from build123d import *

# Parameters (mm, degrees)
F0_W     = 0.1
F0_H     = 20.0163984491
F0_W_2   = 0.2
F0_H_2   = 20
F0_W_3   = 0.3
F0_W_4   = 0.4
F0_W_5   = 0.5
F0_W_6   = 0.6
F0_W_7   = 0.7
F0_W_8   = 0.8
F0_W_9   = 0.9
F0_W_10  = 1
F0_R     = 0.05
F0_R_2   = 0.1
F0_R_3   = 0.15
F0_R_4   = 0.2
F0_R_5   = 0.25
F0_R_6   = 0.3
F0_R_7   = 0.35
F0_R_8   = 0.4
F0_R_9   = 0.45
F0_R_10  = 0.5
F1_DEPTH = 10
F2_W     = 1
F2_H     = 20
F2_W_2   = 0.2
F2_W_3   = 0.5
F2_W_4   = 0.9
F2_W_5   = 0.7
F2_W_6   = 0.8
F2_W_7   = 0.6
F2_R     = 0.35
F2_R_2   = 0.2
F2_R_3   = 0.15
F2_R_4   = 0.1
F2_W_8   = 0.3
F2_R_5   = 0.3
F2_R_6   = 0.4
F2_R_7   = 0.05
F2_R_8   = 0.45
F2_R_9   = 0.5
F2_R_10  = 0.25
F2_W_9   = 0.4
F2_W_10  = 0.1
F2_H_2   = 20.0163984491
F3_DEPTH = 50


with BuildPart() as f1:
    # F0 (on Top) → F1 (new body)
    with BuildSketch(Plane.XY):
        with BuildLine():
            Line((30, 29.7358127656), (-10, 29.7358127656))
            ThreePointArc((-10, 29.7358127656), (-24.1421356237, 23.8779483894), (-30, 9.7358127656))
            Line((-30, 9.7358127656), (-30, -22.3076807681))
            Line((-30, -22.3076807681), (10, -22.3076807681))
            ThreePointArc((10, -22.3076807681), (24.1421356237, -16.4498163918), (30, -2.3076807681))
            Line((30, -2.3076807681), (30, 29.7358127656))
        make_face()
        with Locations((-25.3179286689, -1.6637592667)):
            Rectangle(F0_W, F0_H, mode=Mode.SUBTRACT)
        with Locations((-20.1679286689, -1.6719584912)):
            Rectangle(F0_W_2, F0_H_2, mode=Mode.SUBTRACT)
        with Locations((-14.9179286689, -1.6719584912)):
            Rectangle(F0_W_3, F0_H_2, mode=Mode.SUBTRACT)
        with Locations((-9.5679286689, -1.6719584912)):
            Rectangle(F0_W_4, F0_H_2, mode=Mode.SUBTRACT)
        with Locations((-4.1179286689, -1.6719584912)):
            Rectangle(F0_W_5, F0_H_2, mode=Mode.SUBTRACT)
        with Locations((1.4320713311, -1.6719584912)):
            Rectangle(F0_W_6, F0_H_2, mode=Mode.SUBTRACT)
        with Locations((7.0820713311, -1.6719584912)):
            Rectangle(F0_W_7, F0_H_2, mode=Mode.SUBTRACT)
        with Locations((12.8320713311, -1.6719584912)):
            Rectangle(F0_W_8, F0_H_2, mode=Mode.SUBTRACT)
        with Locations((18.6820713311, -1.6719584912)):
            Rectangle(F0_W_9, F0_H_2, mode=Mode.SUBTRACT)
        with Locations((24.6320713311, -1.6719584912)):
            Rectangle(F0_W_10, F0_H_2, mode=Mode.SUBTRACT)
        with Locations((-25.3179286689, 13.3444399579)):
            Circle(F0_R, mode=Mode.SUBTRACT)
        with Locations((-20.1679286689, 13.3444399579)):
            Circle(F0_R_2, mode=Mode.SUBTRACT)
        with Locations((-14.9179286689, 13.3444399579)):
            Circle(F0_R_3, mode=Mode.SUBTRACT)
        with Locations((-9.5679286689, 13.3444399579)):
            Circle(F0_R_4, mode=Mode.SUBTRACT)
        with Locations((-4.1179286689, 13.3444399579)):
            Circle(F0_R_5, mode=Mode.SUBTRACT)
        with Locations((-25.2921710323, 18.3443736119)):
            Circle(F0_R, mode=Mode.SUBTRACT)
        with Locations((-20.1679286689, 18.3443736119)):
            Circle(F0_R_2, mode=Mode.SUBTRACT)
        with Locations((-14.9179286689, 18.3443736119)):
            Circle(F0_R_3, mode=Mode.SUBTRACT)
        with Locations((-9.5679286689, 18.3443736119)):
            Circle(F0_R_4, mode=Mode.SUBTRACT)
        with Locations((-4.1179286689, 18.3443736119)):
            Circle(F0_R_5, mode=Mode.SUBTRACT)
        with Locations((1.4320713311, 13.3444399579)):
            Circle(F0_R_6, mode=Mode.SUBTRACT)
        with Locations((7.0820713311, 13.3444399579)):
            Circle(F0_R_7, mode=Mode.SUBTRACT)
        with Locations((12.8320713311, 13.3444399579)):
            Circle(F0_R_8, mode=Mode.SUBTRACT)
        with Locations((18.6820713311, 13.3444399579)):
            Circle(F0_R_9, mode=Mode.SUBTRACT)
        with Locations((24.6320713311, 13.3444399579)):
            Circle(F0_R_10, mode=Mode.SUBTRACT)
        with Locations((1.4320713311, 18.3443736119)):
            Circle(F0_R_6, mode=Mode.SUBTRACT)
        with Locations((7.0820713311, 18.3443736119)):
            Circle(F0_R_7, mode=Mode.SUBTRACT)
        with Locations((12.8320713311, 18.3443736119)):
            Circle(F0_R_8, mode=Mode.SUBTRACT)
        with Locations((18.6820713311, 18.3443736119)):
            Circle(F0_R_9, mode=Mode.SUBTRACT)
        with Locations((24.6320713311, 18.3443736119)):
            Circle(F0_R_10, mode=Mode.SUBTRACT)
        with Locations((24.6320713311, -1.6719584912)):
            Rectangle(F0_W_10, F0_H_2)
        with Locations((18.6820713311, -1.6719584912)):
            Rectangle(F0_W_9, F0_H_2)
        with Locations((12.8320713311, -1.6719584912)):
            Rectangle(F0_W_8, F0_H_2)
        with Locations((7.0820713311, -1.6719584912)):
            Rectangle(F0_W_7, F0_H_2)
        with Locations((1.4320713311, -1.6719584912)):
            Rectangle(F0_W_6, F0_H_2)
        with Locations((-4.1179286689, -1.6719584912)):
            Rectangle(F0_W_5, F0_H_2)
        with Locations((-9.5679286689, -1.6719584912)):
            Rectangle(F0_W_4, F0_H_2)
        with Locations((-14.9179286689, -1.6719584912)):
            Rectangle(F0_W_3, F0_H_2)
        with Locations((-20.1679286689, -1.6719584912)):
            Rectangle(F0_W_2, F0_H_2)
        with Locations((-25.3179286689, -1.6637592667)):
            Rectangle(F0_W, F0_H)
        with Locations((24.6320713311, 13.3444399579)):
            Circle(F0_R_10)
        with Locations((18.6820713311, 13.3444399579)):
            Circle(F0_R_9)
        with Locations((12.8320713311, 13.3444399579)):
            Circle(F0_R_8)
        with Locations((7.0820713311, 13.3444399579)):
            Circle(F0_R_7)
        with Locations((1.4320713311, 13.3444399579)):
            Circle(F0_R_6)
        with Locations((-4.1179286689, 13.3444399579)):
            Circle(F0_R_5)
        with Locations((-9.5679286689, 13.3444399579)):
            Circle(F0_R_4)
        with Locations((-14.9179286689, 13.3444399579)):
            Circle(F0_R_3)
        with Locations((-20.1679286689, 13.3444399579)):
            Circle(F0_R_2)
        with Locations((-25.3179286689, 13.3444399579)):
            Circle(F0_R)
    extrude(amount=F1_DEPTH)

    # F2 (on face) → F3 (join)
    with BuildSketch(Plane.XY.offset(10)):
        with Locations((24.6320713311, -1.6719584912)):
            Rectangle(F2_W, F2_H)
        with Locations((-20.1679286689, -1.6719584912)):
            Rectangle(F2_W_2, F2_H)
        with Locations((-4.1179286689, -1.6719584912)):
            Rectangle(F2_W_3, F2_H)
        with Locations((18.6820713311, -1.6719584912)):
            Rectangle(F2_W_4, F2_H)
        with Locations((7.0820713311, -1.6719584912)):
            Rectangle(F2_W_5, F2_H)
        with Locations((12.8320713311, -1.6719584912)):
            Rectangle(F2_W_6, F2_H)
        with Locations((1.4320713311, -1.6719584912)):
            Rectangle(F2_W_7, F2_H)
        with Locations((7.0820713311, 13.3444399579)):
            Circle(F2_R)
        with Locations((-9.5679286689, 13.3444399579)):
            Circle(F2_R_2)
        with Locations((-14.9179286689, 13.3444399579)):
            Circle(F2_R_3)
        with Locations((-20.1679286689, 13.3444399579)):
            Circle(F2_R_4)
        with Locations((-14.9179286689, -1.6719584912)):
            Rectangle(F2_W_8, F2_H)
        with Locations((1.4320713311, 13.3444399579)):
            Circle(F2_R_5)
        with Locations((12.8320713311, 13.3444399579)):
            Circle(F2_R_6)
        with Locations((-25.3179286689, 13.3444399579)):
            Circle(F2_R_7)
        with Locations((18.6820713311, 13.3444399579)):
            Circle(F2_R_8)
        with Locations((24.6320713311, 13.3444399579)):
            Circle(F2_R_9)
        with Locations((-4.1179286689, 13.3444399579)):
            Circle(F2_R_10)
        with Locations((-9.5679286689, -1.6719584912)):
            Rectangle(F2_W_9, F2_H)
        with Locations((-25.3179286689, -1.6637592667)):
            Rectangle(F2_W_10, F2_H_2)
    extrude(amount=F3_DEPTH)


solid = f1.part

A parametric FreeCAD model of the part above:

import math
import FreeCAD as App
import Part
import Sketcher
from FreeCAD import Vector
Q = App.Units.Quantity


def add_polygon(sketch, points):
    """Adds a closed chain of lines whose ends are joined by coincident constraints."""
    first, n = sketch.GeometryCount, len(points)
    for a, b in zip(points, points[1:] + points[:1]):
        sketch.addGeometry(Part.LineSegment(App.Vector(*a, 0), App.Vector(*b, 0)), False)
    for i in range(n):
        sketch.addConstraint(Sketcher.Constraint("Coincident", first + i, 2, first + (i + 1) % n, 1))

doc = App.newDocument("Part")
params = doc.addObject("Spreadsheet::Sheet", "Params")
for row, (alias, value) in enumerate([
    ("sketch1_diameter", "1 mm"),
    ("sketch1_radius", "20 mm"),
    ("sketch1_diameter2", "0.1 mm"),
    ("sketch1_diameter3", "0.2 mm"),
    ("sketch1_diameter4", "0.3 mm"),
    ("pad1_length", "10 mm"),
    ("sketch2_diameter", "1 mm"),
    ("sketch2_diameter2", "0.7 mm"),
    ("sketch2_diameter3", "0.4 mm"),
    ("sketch2_diameter4", "0.3 mm"),
    ("sketch2_diameter5", "0.2 mm"),
    ("pad2_length", "50 mm"),
], start=1):
    params.set(f"A{row}", alias)
    params.set(f"B{row}", "=" + value)
    params.setAlias(f"B{row}", alias)

body = doc.addObject("PartDesign::Body", "Body")

# Sketch on XY plane
sketch1 = body.newObject("Sketcher::SketchObject", "Sketch")
sketch1.AttachmentSupport = (doc.getObject("XY_Plane"), [""])
sketch1.MapMode = "FlatFace"
sketch1.addGeometry([
    Part.LineSegment(Vector(30, 29.735813, 0), Vector(-10, 29.735813, 0)),  # 0
    Part.ArcOfCircle(Part.Circle(Vector(-10, 9.735813, 0), Vector(0, 0, 1), 20), math.radians(90), math.radians(180)),  # 1
    Part.LineSegment(Vector(-30, 9.735813, 0), Vector(-30, -22.307681, 0)),  # 2
    Part.LineSegment(Vector(-30, -22.307681, 0), Vector(10, -22.307681, 0)),  # 3
    Part.ArcOfCircle(Part.Circle(Vector(10, -2.307681, 0), Vector(0, 0, 1), 20), math.radians(-90), math.radians(0)),  # 4
    Part.LineSegment(Vector(30, -2.307681, 0), Vector(30, 29.735813, 0)),  # 5
    Part.Circle(Vector(-25.292171, 18.344374, 0), Vector(0, 0, 1), 0.05),  # 6
    Part.Circle(Vector(-20.167929, 18.344374, 0), Vector(0, 0, 1), 0.1),  # 7
    Part.Circle(Vector(-14.917929, 18.344374, 0), Vector(0, 0, 1), 0.15),  # 8
    Part.Circle(Vector(-9.567929, 18.344374, 0), Vector(0, 0, 1), 0.2),  # 9
    Part.Circle(Vector(-4.117929, 18.344374, 0), Vector(0, 0, 1), 0.25),  # 10
    Part.Circle(Vector(1.432071, 18.344374, 0), Vector(0, 0, 1), 0.3),  # 11
    Part.Circle(Vector(7.082071, 18.344374, 0), Vector(0, 0, 1), 0.35),  # 12
    Part.Circle(Vector(12.832071, 18.344374, 0), Vector(0, 0, 1), 0.4),  # 13
    Part.Circle(Vector(18.682071, 18.344374, 0), Vector(0, 0, 1), 0.45),  # 14
    Part.Circle(Vector(24.632071, 18.344374, 0), Vector(0, 0, 1), 0.5),  # 15
], False)
sketch1.addConstraint([
    Sketcher.Constraint("Tangent", 0, 2, 1, 1),
    Sketcher.Constraint("Tangent", 1, 2, 2, 1),
    Sketcher.Constraint("Coincident", 2, 2, 3, 1),
    Sketcher.Constraint("Tangent", 3, 2, 4, 1),
    Sketcher.Constraint("Tangent", 4, 2, 5, 1),
    Sketcher.Constraint("Coincident", 5, 2, 0, 1),
    Sketcher.Constraint("Horizontal", 0),
    Sketcher.Constraint("Vertical", 2),
    Sketcher.Constraint("Horizontal", 3),
    Sketcher.Constraint("Vertical", 5),
    Sketcher.Constraint("Equal", 1, 4),
    Sketcher.Constraint("Horizontal", 6, 3, 7, 3),
    Sketcher.Constraint("Horizontal", 7, 3, 8, 3),
    Sketcher.Constraint("Horizontal", 8, 3, 9, 3),
    Sketcher.Constraint("Horizontal", 9, 3, 10, 3),
    Sketcher.Constraint("Horizontal", 10, 3, 11, 3),
    Sketcher.Constraint("Horizontal", 11, 3, 12, 3),
    Sketcher.Constraint("Horizontal", 12, 3, 13, 3),
    Sketcher.Constraint("Horizontal", 13, 3, 14, 3),
    Sketcher.Constraint("Horizontal", 14, 3, 15, 3),
    Sketcher.Constraint("Diameter", 15, Q("1 mm")),
    Sketcher.Constraint("Radius", 1, Q("20 mm")),
    Sketcher.Constraint("Diameter", 6, Q("0.1 mm")),
    Sketcher.Constraint("Diameter", 7, Q("0.2 mm")),
    Sketcher.Constraint("Diameter", 8, Q("0.3 mm")),
    Sketcher.Constraint("Diameter", 9, Q("0.4 mm")),
    Sketcher.Constraint("Diameter", 10, Q("0.5 mm")),
    Sketcher.Constraint("Diameter", 11, Q("0.6 mm")),
    Sketcher.Constraint("Diameter", 12, Q("0.7 mm")),
    Sketcher.Constraint("Diameter", 13, Q("0.8 mm")),
    Sketcher.Constraint("Diameter", 14, Q("0.9 mm")),
    Sketcher.Constraint("DistanceX", 0, 2, 0, 1, Q("40 mm")),
    Sketcher.Constraint("DistanceX", 1, 3, -1, 1, Q("10 mm")),
    Sketcher.Constraint("DistanceX", 9, 3, 11, 3, Q("11 mm")),
    Sketcher.Constraint("DistanceX", 7, 3, 9, 3, Q("10.6 mm")),
    Sketcher.Constraint("DistanceX", 8, 3, 10, 3, Q("10.8 mm")),
    Sketcher.Constraint("DistanceX", 10, 3, 12, 3, Q("11.2 mm")),
    Sketcher.Constraint("DistanceX", 11, 3, 13, 3, Q("11.4 mm")),
    Sketcher.Constraint("DistanceX", 12, 3, 14, 3, Q("11.6 mm")),
    Sketcher.Constraint("DistanceX", 13, 3, 15, 3, Q("11.8 mm")),
    Sketcher.Constraint("DistanceX", 7, 3, 8, 3, Q("5.25 mm")),
    Sketcher.Constraint("DistanceY", 2, 2, 2, 1, Q("32.043494 mm")),
    Sketcher.Constraint("DistanceY", 4, 3, -1, 1, Q("2.307681 mm")),
    Sketcher.Constraint("DistanceX", 6, 3, -1, 1, Q("25.292171 mm")),
    Sketcher.Constraint("DistanceX", 7, 3, -1, 1, Q("20.167929 mm")),
    Sketcher.Constraint("DistanceY", 1, 3, 6, 3, Q("8.608561 mm")),
])
sketch1.setExpression("Constraints[20]", "Params.sketch1_diameter")
sketch1.setExpression("Constraints[21]", "Params.sketch1_radius")
sketch1.setExpression("Constraints[22]", "Params.sketch1_diameter2")
sketch1.setExpression("Constraints[23]", "Params.sketch1_diameter3")
sketch1.setExpression("Constraints[24]", "Params.sketch1_diameter4")
pad1 = body.newObject("PartDesign::Pad", "Pad")
pad1.Profile = sketch1
pad1.setExpression("Length", "Params.pad1_length")

# Sketch on XY plane
sketch2 = body.newObject("Sketcher::SketchObject", "Sketch001")
sketch2.AttachmentSupport = (doc.getObject("XY_Plane"), [""])
sketch2.MapMode = "FlatFace"
sketch2.AttachmentOffset = App.Placement(Vector(0, 0, 10), App.Rotation())
add_polygon(sketch2, [(24.132071, 8.328042), (24.132071, -11.671958), (25.132071, -11.671958), (25.132071, 8.328042)])  # lines 0-3
add_polygon(sketch2, [(-20.267929, 8.328042), (-20.267929, -11.671958), (-20.067929, -11.671958), (-20.067929, 8.328042)])  # lines 4-7
add_polygon(sketch2, [(-4.367929, 8.328042), (-4.367929, -11.671958), (-3.867929, -11.671958), (-3.867929, 8.328042)])  # lines 8-11
add_polygon(sketch2, [(18.232071, 8.328042), (18.232071, -11.671958), (19.132071, -11.671958), (19.132071, 8.328042)])  # lines 12-15
add_polygon(sketch2, [(6.732071, 8.328042), (6.732071, -11.671958), (7.432071, -11.671958), (7.432071, 8.328042)])  # lines 16-19
add_polygon(sketch2, [(12.432071, 8.328042), (12.432071, -11.671958), (13.232071, -11.671958), (13.232071, 8.328042)])  # lines 20-23
add_polygon(sketch2, [(1.132071, 8.328042), (1.132071, -11.671958), (1.732071, -11.671958), (1.732071, 8.328042)])  # lines 24-27
sketch2.addGeometry(Part.Circle(Vector(7.082071, 13.34444, 0), Vector(0, 0, 1), 0.35), False)  # 28
sketch2.addGeometry(Part.Circle(Vector(-9.567929, 13.34444, 0), Vector(0, 0, 1), 0.2), False)  # 29
sketch2.addGeometry(Part.Circle(Vector(-14.917929, 13.34444, 0), Vector(0, 0, 1), 0.15), False)  # 30
sketch2.addGeometry(Part.Circle(Vector(-20.167929, 13.34444, 0), Vector(0, 0, 1), 0.1), False)  # 31
add_polygon(sketch2, [(-15.067929, 8.328042), (-15.067929, -11.671958), (-14.767929, -11.671958), (-14.767929, 8.328042)])  # lines 32-35
sketch2.addGeometry(Part.Circle(Vector(1.432071, 13.34444, 0), Vector(0, 0, 1), 0.3), False)  # 36
sketch2.addGeometry(Part.Circle(Vector(12.832071, 13.34444, 0), Vector(0, 0, 1), 0.4), False)  # 37
sketch2.addGeometry(Part.Circle(Vector(-25.317929, 13.34444, 0), Vector(0, 0, 1), 0.05), False)  # 38
sketch2.addGeometry(Part.Circle(Vector(18.682071, 13.34444, 0), Vector(0, 0, 1), 0.45), False)  # 39
sketch2.addGeometry(Part.Circle(Vector(24.632071, 13.34444, 0), Vector(0, 0, 1), 0.5), False)  # 40
sketch2.addGeometry(Part.Circle(Vector(-4.117929, 13.34444, 0), Vector(0, 0, 1), 0.25), False)  # 41
add_polygon(sketch2, [(-9.767929, 8.328042), (-9.767929, -11.671958), (-9.367929, -11.671958), (-9.367929, 8.328042)])  # lines 42-45
add_polygon(sketch2, [(-25.367929, 8.34444), (-25.367929, -11.671958), (-25.267929, -11.671958), (-25.267929, 8.34444)])  # lines 46-49
sketch2.addConstraint([
    Sketcher.Constraint("Vertical", 0),
    Sketcher.Constraint("Horizontal", 1),
    Sketcher.Constraint("Vertical", 2),
    Sketcher.Constraint("Horizontal", 3),
    Sketcher.Constraint("Vertical", 4),
    Sketcher.Constraint("Horizontal", 5),
    Sketcher.Constraint("Vertical", 6),
    Sketcher.Constraint("Horizontal", 7),
    Sketcher.Constraint("Vertical", 8),
    Sketcher.Constraint("Horizontal", 9),
    Sketcher.Constraint("Vertical", 10),
    Sketcher.Constraint("Horizontal", 11),
    Sketcher.Constraint("Vertical", 12),
    Sketcher.Constraint("Horizontal", 13),
    Sketcher.Constraint("Vertical", 14),
    Sketcher.Constraint("Horizontal", 15),
    Sketcher.Constraint("Vertical", 16),
    Sketcher.Constraint("Horizontal", 17),
    Sketcher.Constraint("Vertical", 18),
    Sketcher.Constraint("Horizontal", 19),
    Sketcher.Constraint("Vertical", 20),
    Sketcher.Constraint("Horizontal", 21),
    Sketcher.Constraint("Vertical", 22),
    Sketcher.Constraint("Horizontal", 23),
    Sketcher.Constraint("Vertical", 24),
    Sketcher.Constraint("Horizontal", 25),
    Sketcher.Constraint("Vertical", 26),
    Sketcher.Constraint("Horizontal", 27),
    Sketcher.Constraint("Vertical", 32),
    Sketcher.Constraint("Horizontal", 33),
    Sketcher.Constraint("Vertical", 34),
    Sketcher.Constraint("Horizontal", 35),
    Sketcher.Constraint("Vertical", 42),
    Sketcher.Constraint("Horizontal", 43),
    Sketcher.Constraint("Vertical", 44),
    Sketcher.Constraint("Horizontal", 45),
    Sketcher.Constraint("Vertical", 46),
    Sketcher.Constraint("Horizontal", 47),
    Sketcher.Constraint("Vertical", 48),
    Sketcher.Constraint("Horizontal", 49),
    Sketcher.Constraint("Horizontal", 28, 3, 29, 3),
    Sketcher.Constraint("Horizontal", 29, 3, 30, 3),
    Sketcher.Constraint("Horizontal", 30, 3, 31, 3),
    Sketcher.Constraint("Horizontal", 31, 3, 36, 3),
    Sketcher.Constraint("Horizontal", 36, 3, 37, 3),
    Sketcher.Constraint("Horizontal", 37, 3, 38, 3),
    Sketcher.Constraint("Horizontal", 38, 3, 39, 3),
    Sketcher.Constraint("Horizontal", 39, 3, 40, 3),
    Sketcher.Constraint("Horizontal", 40, 3, 41, 3),
    Sketcher.Constraint("Horizontal", 1, 2, 4, 2),
    Sketcher.Constraint("Horizontal", 3, 2, 6, 2),
    Sketcher.Constraint("Horizontal", 5, 2, 8, 2),
    Sketcher.Constraint("Horizontal", 7, 2, 10, 2),
    Sketcher.Constraint("Horizontal", 9, 2, 12, 2),
    Sketcher.Constraint("Horizontal", 11, 2, 14, 2),
    Sketcher.Constraint("Horizontal", 13, 2, 16, 2),
    Sketcher.Constraint("Horizontal", 15, 2, 18, 2),
    Sketcher.Constraint("Horizontal", 17, 2, 20, 2),
    Sketcher.Constraint("Horizontal", 19, 2, 22, 2),
    Sketcher.Constraint("Horizontal", 21, 2, 24, 2),
    Sketcher.Constraint("Horizontal", 23, 2, 26, 2),
    Sketcher.Constraint("Horizontal", 25, 2, 32, 2),
    Sketcher.Constraint("Horizontal", 27, 2, 34, 2),
    Sketcher.Constraint("Horizontal", 33, 2, 42, 2),
    Sketcher.Constraint("Horizontal", 35, 2, 44, 2),
    Sketcher.Constraint("Horizontal", 43, 2, 46, 2),
    Sketcher.Constraint("Diameter", 40, Q("1 mm")),
    Sketcher.Constraint("Diameter", 28, Q("0.7 mm")),
    Sketcher.Constraint("Diameter", 29, Q("0.4 mm")),
    Sketcher.Constraint("Diameter", 30, Q("0.3 mm")),
    Sketcher.Constraint("Diameter", 31, Q("0.2 mm")),
    Sketcher.Constraint("Diameter", 36, Q("0.6 mm")),
    Sketcher.Constraint("Diameter", 37, Q("0.8 mm")),
    Sketcher.Constraint("Diameter", 38, Q("0.1 mm")),
    Sketcher.Constraint("Diameter", 39, Q("0.9 mm")),
    Sketcher.Constraint("Diameter", 41, Q("0.5 mm")),
    Sketcher.Constraint("DistanceX", 1, 1, 1, 2, Q("1 mm")),
    Sketcher.Constraint("DistanceY", 0, 2, 0, 1, Q("20 mm")),
    Sketcher.Constraint("DistanceX", 5, 1, 5, 2, Q("0.2 mm")),
    Sketcher.Constraint("DistanceX", 9, 1, 9, 2, Q("0.5 mm")),
    Sketcher.Constraint("DistanceX", 13, 1, 13, 2, Q("0.9 mm")),
    Sketcher.Constraint("DistanceX", 17, 1, 17, 2, Q("0.7 mm")),
    Sketcher.Constraint("DistanceX", 21, 1, 21, 2, Q("0.8 mm")),
    Sketcher.Constraint("DistanceX", 25, 1, 25, 2, Q("0.6 mm")),
    Sketcher.Constraint("DistanceX", 33, 1, 33, 2, Q("0.3 mm")),
    Sketcher.Constraint("DistanceX", 43, 1, 43, 2, Q("0.4 mm")),
    Sketcher.Constraint("DistanceX", 47, 1, 47, 2, Q("0.1 mm")),
    Sketcher.Constraint("DistanceX", 30, 3, 28, 3, Q("22 mm")),
    Sketcher.Constraint("DistanceX", 29, 3, 36, 3, Q("11 mm")),
    Sketcher.Constraint("DistanceX", 31, 3, 37, 3, Q("33 mm")),
    Sketcher.Constraint("DistanceX", 13, 2, 0, 2, Q("5 mm")),
    Sketcher.Constraint("DistanceX", 36, 3, 18, 2, Q("6 mm")),
    Sketcher.Constraint("DistanceX", 17, 2, 20, 2, Q("5 mm")),
    Sketcher.Constraint("DistanceX", 21, 2, 12, 2, Q("5 mm")),
    Sketcher.Constraint("DistanceX", 9, 2, 24, 2, Q("5 mm")),
    Sketcher.Constraint("DistanceX", 25, 2, 16, 2, Q("5 mm")),
    Sketcher.Constraint("DistanceX", 5, 2, 32, 2, Q("5 mm")),
    Sketcher.Constraint("DistanceX", 33, 2, 42, 2, Q("5 mm")),
    Sketcher.Constraint("DistanceX", 43, 2, 8, 2, Q("5 mm")),
    Sketcher.Constraint("DistanceX", 47, 2, 4, 2, Q("5 mm")),
    Sketcher.Constraint("DistanceY", 48, 2, 38, 3, Q("5 mm")),
    Sketcher.Constraint("DistanceX", 31, 3, 29, 3, Q("10.6 mm")),
    Sketcher.Constraint("DistanceX", 38, 3, 30, 3, Q("10.4 mm")),
    Sketcher.Constraint("DistanceX", 28, 3, 39, 3, Q("11.6 mm")),
    Sketcher.Constraint("DistanceX", 37, 3, 40, 3, Q("11.8 mm")),
    Sketcher.Constraint("DistanceX", 30, 3, 41, 3, Q("10.8 mm")),
    Sketcher.Constraint("DistanceX", 29, 3, 28, 3, Q("16.65 mm")),
    Sketcher.Constraint("DistanceY", 46, 2, 46, 1, Q("20.016398 mm")),
    Sketcher.Constraint("DistanceX", -1, 1, 28, 3, Q("7.082071 mm")),
    Sketcher.Constraint("DistanceY", -1, 1, 28, 3, Q("13.34444 mm")),
])
sketch2.setExpression("Constraints[106]", "Params.sketch2_diameter")
sketch2.setExpression("Constraints[107]", "Params.sketch2_diameter2")
sketch2.setExpression("Constraints[108]", "Params.sketch2_diameter3")
sketch2.setExpression("Constraints[109]", "Params.sketch2_diameter4")
sketch2.setExpression("Constraints[110]", "Params.sketch2_diameter5")
pad2 = body.newObject("PartDesign::Pad", "Pad001")
pad2.Profile = sketch2
pad2.setExpression("Length", "Params.pad2_length")

doc.recompute()
